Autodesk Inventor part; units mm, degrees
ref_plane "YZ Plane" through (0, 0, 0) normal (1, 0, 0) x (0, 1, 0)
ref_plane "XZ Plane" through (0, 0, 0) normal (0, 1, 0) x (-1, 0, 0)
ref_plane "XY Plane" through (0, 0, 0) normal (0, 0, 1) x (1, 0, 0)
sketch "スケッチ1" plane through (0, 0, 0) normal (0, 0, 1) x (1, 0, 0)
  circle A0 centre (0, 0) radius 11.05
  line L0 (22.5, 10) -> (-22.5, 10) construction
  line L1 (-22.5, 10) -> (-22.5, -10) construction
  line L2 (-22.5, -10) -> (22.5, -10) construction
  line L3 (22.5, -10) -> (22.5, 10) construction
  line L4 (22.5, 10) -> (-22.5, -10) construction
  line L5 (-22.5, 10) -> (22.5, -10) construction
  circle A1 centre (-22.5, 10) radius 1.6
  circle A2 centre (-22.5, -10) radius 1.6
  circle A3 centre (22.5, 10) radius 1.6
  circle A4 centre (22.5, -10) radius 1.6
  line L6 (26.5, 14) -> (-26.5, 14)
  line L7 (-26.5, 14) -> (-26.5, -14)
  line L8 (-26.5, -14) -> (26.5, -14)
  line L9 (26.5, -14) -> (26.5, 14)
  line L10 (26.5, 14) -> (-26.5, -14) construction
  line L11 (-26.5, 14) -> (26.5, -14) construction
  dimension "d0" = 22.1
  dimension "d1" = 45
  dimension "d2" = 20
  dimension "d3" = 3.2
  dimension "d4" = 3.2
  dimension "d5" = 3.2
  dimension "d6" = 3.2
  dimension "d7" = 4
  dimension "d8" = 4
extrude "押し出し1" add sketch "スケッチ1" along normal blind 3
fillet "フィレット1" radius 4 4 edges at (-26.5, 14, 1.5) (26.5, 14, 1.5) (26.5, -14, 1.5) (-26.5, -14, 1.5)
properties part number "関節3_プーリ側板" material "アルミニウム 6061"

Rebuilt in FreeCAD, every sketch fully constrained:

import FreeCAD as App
import Part
import Sketcher
Q = App.Units.Quantity


def edges_at(feature, points):
    """Names of the edges that pass closest to the given points."""
    edges = feature.Shape.Edges
    near = lambda p: min(range(len(edges)), key=lambda i: edges[i].distToShape(Part.Vertex(*p))[0])
    return sorted({f"Edge{near(p) + 1}" for p in points})


def add_polygon(sketch, points):
    """Adds a closed chain of lines whose ends are joined by coincident constraints."""
    first, n = sketch.GeometryCount, len(points)
    for a, b in zip(points, points[1:] + points[:1]):
        sketch.addGeometry(Part.LineSegment(App.Vector(*a, 0), App.Vector(*b, 0)), False)
    for i in range(n):
        sketch.addConstraint(Sketcher.Constraint("Coincident", first + i, 2, first + (i + 1) % n, 1))

doc = App.newDocument("Part")
body = doc.addObject("PartDesign::Body", "Body")

sketch1 = doc.addObject("Sketcher::SketchObject", "Sketch")
body.addObject(sketch1)
sketch1.AttachmentSupport = (doc.XY_Plane, [""])
sketch1.MapMode = "FlatFace"
add_polygon(sketch1, [(26.5, -14), (26.5, 14), (-26.5, 14), (-26.5, -14)])
sketch1.addGeometry(Part.Circle(App.Vector(-22.5, -10, 0), App.Vector(0, 0, 1), 1.6), False)
sketch1.addGeometry(Part.Circle(App.Vector(22.5, -10, 0), App.Vector(0, 0, 1), 1.6), False)
sketch1.addGeometry(Part.Circle(App.Vector(-22.5, 10, 0), App.Vector(0, 0, 1), 1.6), False)
sketch1.addGeometry(Part.Circle(App.Vector(0, 0, 0), App.Vector(0, 0, 1), 11.1), False)
sketch1.addGeometry(Part.Circle(App.Vector(22.5, 10, 0), App.Vector(0, 0, 1), 1.6), False)
sketch1.addConstraint([
    Sketcher.Constraint("Vertical", 0),
    Sketcher.Constraint("Horizontal", 1),
    Sketcher.Constraint("Vertical", 2),
    Sketcher.Constraint("Horizontal", 3),
    Sketcher.Constraint("Coincident", 7, 3, -1, 1),
    Sketcher.Constraint("Equal", 4, 5),
    Sketcher.Constraint("Equal", 5, 6),
    Sketcher.Constraint("Equal", 6, 8),
    Sketcher.Constraint("Symmetric", 5, 3, 6, 3, -1, 1),
    Sketcher.Constraint("Symmetric", 4, 3, 8, 3, -1, 1),
    Sketcher.Constraint("Symmetric", 0, 2, 2, 2, -1, 1),
    Sketcher.Constraint("Symmetric", 4, 3, 5, 3, -2),
    Sketcher.Constraint("Diameter", 4, Q("3.2 mm")),
    Sketcher.Constraint("Diameter", 7, Q("22.1 mm")),
    Sketcher.Constraint("DistanceX", 4, 3, 5, 3, Q("45 mm")),
    Sketcher.Constraint("DistanceY", 4, 3, 6, 3, Q("20 mm")),
    Sketcher.Constraint("DistanceX", 8, 3, 0, 2, Q("4 mm")),
    Sketcher.Constraint("DistanceY", 8, 3, 0, 2, Q("4 mm")),
])
pad1 = doc.addObject("PartDesign::Pad", "Pad")
body.addObject(pad1)
pad1.Profile = sketch1
pad1.Length = 3
doc.recompute()

fillet = doc.addObject("PartDesign::Fillet", "Fillet")
body.addObject(fillet)
fillet.Base = (pad1, edges_at(pad1, [
    (-26.5, 14, 1.5),
    (26.5, 14, 1.5),
    (26.5, -14, 1.5),
    (-26.5, -14, 1.5),
]))
fillet.Radius = 4

doc.recompute()
